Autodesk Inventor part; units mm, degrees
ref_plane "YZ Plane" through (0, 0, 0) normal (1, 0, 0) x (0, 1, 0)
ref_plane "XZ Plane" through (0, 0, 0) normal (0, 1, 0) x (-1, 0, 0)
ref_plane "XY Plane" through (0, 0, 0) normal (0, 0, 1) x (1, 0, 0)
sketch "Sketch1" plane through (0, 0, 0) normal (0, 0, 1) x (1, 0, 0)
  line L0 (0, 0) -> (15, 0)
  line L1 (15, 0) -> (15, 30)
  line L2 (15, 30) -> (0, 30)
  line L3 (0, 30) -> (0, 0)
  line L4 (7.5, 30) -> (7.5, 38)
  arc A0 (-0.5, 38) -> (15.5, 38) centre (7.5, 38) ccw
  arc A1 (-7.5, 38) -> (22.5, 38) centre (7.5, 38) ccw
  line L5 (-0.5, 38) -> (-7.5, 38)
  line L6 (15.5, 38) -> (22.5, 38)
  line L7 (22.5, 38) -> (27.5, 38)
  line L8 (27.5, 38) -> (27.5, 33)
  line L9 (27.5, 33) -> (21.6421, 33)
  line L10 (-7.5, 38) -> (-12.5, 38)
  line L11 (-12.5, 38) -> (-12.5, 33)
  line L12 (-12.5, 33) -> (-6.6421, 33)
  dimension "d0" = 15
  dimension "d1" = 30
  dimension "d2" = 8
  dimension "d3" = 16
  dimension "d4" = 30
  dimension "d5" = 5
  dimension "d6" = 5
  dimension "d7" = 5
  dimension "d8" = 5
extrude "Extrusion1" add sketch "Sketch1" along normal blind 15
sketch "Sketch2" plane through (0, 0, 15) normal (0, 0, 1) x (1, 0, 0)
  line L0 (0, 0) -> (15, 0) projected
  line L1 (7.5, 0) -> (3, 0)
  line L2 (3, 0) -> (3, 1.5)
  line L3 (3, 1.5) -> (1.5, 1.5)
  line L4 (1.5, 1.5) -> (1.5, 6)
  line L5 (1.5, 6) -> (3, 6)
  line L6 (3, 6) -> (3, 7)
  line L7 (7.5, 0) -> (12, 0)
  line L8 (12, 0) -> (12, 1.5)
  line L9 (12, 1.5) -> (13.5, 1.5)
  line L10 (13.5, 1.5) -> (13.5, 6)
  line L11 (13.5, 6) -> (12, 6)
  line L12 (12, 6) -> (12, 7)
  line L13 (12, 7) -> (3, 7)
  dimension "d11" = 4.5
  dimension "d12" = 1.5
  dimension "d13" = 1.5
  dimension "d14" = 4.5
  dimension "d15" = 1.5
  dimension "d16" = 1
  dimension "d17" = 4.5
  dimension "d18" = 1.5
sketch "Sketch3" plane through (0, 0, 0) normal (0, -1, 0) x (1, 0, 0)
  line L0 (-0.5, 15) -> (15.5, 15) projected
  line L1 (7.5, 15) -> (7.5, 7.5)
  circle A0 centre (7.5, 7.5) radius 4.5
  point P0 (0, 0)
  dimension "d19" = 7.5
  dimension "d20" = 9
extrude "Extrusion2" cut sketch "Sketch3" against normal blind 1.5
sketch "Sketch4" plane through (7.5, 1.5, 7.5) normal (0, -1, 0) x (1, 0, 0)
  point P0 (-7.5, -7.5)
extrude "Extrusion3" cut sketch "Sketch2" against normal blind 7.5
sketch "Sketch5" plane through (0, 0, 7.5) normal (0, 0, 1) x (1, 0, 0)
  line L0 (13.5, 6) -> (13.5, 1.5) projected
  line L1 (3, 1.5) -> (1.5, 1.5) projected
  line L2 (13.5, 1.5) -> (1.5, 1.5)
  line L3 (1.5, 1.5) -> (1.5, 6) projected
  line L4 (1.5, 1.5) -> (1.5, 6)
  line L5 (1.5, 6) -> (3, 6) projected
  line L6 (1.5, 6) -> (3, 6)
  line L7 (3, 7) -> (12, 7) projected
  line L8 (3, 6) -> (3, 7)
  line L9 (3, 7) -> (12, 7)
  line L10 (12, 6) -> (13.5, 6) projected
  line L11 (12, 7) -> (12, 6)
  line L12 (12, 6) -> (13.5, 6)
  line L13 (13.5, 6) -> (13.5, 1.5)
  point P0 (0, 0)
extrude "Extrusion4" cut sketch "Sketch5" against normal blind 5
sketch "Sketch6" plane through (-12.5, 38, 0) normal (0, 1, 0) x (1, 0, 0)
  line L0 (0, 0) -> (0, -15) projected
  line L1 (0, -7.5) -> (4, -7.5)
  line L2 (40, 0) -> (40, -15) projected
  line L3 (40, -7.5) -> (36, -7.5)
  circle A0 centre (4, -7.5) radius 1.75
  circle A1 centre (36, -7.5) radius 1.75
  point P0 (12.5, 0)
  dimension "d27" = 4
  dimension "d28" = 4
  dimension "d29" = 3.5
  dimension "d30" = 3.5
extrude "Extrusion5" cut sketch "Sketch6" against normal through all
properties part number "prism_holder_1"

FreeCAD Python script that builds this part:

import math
import FreeCAD as App
import Part
import Sketcher
from FreeCAD import Vector

doc = App.newDocument("Part")
body = doc.addObject("PartDesign::Body", "Body")

sketch1 = body.newObject("Sketcher::SketchObject", "Sketch")
sketch1.AttachmentSupport = (doc.getObject("XY_Plane"), [""])
sketch1.MapMode = "FlatFace"
sketch1.addGeometry([
    Part.LineSegment(Vector(0, 25.009619, 0), Vector(0, 0, 0)),
    Part.LineSegment(Vector(0, 0, 0), Vector(15, 0, 0)),
    Part.LineSegment(Vector(15, 0, 0), Vector(15, 25.009619, 0)),
    Part.ArcOfCircle(Part.Circle(Vector(7.5, 38, 0), Vector(0, 0, 1), 15), math.radians(-60), math.radians(-19.471266)),
    Part.LineSegment(Vector(21.6421, 33, 0), Vector(27.5, 33, 0)),
    Part.LineSegment(Vector(27.5, 33, 0), Vector(27.5, 38, 0)),
    Part.LineSegment(Vector(27.5, 38, 0), Vector(15.5, 38, 0)),
    Part.ArcOfCircle(Part.Circle(Vector(7.5, 38, 0), Vector(0, 0, 1), 8), math.radians(180), math.radians(360)),
    Part.LineSegment(Vector(-0.5, 38, 0), Vector(-12.5, 38, 0)),
    Part.LineSegment(Vector(-12.5, 38, 0), Vector(-12.5, 33, 0)),
    Part.LineSegment(Vector(-12.5, 33, 0), Vector(-6.6421, 33, 0)),
    Part.ArcOfCircle(Part.Circle(Vector(7.5, 38, 0), Vector(0, 0, 1), 15), math.radians(-160.528734), math.radians(-120)),
], False)
sketch1.addConstraint([
    Sketcher.Constraint("Coincident", 0, 2, 1, 1),
    Sketcher.Constraint("Coincident", 1, 2, 2, 1),
    Sketcher.Constraint("Coincident", 2, 2, 3, 1),
    Sketcher.Constraint("Coincident", 3, 2, 4, 1),
    Sketcher.Constraint("Coincident", 4, 2, 5, 1),
    Sketcher.Constraint("Coincident", 5, 2, 6, 1),
    Sketcher.Constraint("Coincident", 6, 2, 7, 2),
    Sketcher.Constraint("Coincident", 7, 1, 8, 1),
    Sketcher.Constraint("Coincident", 8, 2, 9, 1),
    Sketcher.Constraint("Coincident", 9, 2, 10, 1),
    Sketcher.Constraint("Coincident", 10, 2, 11, 1),
    Sketcher.Constraint("Coincident", 11, 2, 0, 1),
    Sketcher.Constraint("Vertical", 0),
    Sketcher.Constraint("Horizontal", 1),
    Sketcher.Constraint("Vertical", 2),
    Sketcher.Constraint("Horizontal", 4),
    Sketcher.Constraint("Vertical", 5),
    Sketcher.Constraint("Horizontal", 6),
    Sketcher.Constraint("Horizontal", 8),
    Sketcher.Constraint("Vertical", 9),
    Sketcher.Constraint("Horizontal", 10),
    Sketcher.Constraint("Coincident", 0, 2, -1, 1),
    Sketcher.Constraint("Coincident", 7, 3, 3, 3),
    Sketcher.Constraint("Coincident", 11, 3, 3, 3),
    Sketcher.Constraint("Equal", 3, 11),
    Sketcher.Constraint("Horizontal", 11, 3, 5, 2),
    Sketcher.Constraint("Horizontal", 6, 2, 7, 1),
    Sketcher.Constraint("Horizontal", 4, 2, 9, 2),
    Sketcher.Constraint("Horizontal", 2, 2, 11, 2),
    Sketcher.Constraint("Equal", 6, 8),
    Sketcher.Constraint("Radius", 3, 15.0),
    Sketcher.Constraint("Radius", 7, 8.0),
    Sketcher.Constraint("DistanceX", 1, 1, 1, 2, 15.0),
    Sketcher.Constraint("DistanceY", 5, 1, 5, 2, 5.0),
    Sketcher.Constraint("DistanceX", 6, 2, 6, 1, 12.0),
    Sketcher.Constraint("DistanceY", -1, 1, 3, 3, 38.0),
])
pad1 = body.newObject("PartDesign::Pad", "Pad")
pad1.Profile = sketch1
pad1.Length = 15

sketch2 = body.newObject("Sketcher::SketchObject", "Sketch001")
sketch2.AttachmentSupport = (doc.getObject("XZ_Plane"), [""])
sketch2.MapMode = "FlatFace"
sketch2.addGeometry(Part.Circle(Vector(7.5, 7.5, 0), Vector(0, 0, 1), 4.5), False)
sketch2.addConstraint([
    Sketcher.Constraint("Diameter", 0, 9.0),
    Sketcher.Constraint("DistanceX", -1, 1, 0, 3, 7.5),
    Sketcher.Constraint("DistanceY", -1, 1, 0, 3, 7.5),
])
pocket1 = body.newObject("PartDesign::Pocket", "Pocket")
pocket1.Profile = sketch2
pocket1.Length = 1.5

sketch3 = body.newObject("Sketcher::SketchObject", "Sketch002")
sketch3.AttachmentSupport = (doc.getObject("XY_Plane"), [""])
sketch3.MapMode = "FlatFace"
sketch3.AttachmentOffset = App.Placement(Vector(0, 0, 15), App.Rotation())
sketch3.addGeometry([
    Part.LineSegment(Vector(3, 1.5, 0), Vector(3, 0, 0)),
    Part.LineSegment(Vector(3, 0, 0), Vector(12, 0, 0)),
    Part.LineSegment(Vector(12, 0, 0), Vector(12, 1.5, 0)),
    Part.LineSegment(Vector(12, 1.5, 0), Vector(13.5, 1.5, 0)),
    Part.LineSegment(Vector(13.5, 1.5, 0), Vector(13.5, 6, 0)),
    Part.LineSegment(Vector(13.5, 6, 0), Vector(12, 6, 0)),
    Part.LineSegment(Vector(12, 6, 0), Vector(12, 7, 0)),
    Part.LineSegment(Vector(12, 7, 0), Vector(3, 7, 0)),
    Part.LineSegment(Vector(3, 7, 0), Vector(3, 6, 0)),
    Part.LineSegment(Vector(3, 6, 0), Vector(1.5, 6, 0)),
    Part.LineSegment(Vector(1.5, 6, 0), Vector(1.5, 1.5, 0)),
    Part.LineSegment(Vector(1.5, 1.5, 0), Vector(3, 1.5, 0)),
], False)
sketch3.addConstraint([
    Sketcher.Constraint("Coincident", 0, 2, 1, 1),
    Sketcher.Constraint("Coincident", 1, 2, 2, 1),
    Sketcher.Constraint("Coincident", 2, 2, 3, 1),
    Sketcher.Constraint("Coincident", 3, 2, 4, 1),
    Sketcher.Constraint("Coincident", 4, 2, 5, 1),
    Sketcher.Constraint("Coincident", 5, 2, 6, 1),
    Sketcher.Constraint("Coincident", 6, 2, 7, 1),
    Sketcher.Constraint("Coincident", 7, 2, 8, 1),
    Sketcher.Constraint("Coincident", 8, 2, 9, 1),
    Sketcher.Constraint("Coincident", 9, 2, 10, 1),
    Sketcher.Constraint("Coincident", 10, 2, 11, 1),
    Sketcher.Constraint("Coincident", 11, 2, 0, 1),
    Sketcher.Constraint("Vertical", 0),
    Sketcher.Constraint("Horizontal", 1),
    Sketcher.Constraint("Vertical", 2),
    Sketcher.Constraint("Horizontal", 3),
    Sketcher.Constraint("Vertical", 4),
    Sketcher.Constraint("Horizontal", 5),
    Sketcher.Constraint("Vertical", 6),
    Sketcher.Constraint("Horizontal", 7),
    Sketcher.Constraint("Vertical", 8),
    Sketcher.Constraint("Horizontal", 9),
    Sketcher.Constraint("Vertical", 10),
    Sketcher.Constraint("Horizontal", 11),
    Sketcher.Constraint("PointOnObject", 0, 2, -1),
    Sketcher.Constraint("Horizontal", 5, 2, 8, 2),
    Sketcher.Constraint("Horizontal", 3, 2, 10, 2),
    Sketcher.Constraint("Vertical", 2, 2, 5, 2),
    Sketcher.Constraint("Vertical", 0, 2, 7, 2),
    Sketcher.Constraint("Equal", 5, 9),
    Sketcher.Constraint("Equal", 11, 0),
    Sketcher.Constraint("DistanceY", 6, 1, 6, 2, 1.0),
    Sketcher.Constraint("DistanceX", 3, 1, 3, 2, 1.5),
    Sketcher.Constraint("DistanceY", 4, 1, 4, 2, 4.5),
    Sketcher.Constraint("DistanceX", -1, 1, 9, 2, 1.5),
    Sketcher.Constraint("DistanceX", 1, 1, 1, 2, 9.0),
])
pocket2 = body.newObject("PartDesign::Pocket", "Pocket001")
pocket2.Profile = sketch3
pocket2.Length = 7.5

sketch4 = body.newObject("Sketcher::SketchObject", "Sketch003")
sketch4.AttachmentSupport = (doc.getObject("XY_Plane"), [""])
sketch4.MapMode = "FlatFace"
sketch4.AttachmentOffset = App.Placement(Vector(0, 0, 7.5), App.Rotation())
sketch4.addGeometry([
    Part.LineSegment(Vector(13.5, 1.5, 0), Vector(13.5, 6, 0)),
    Part.LineSegment(Vector(13.5, 6, 0), Vector(12, 6, 0)),
    Part.LineSegment(Vector(12, 6, 0), Vector(12, 7, 0)),
    Part.LineSegment(Vector(12, 7, 0), Vector(3, 7, 0)),
    Part.LineSegment(Vector(3, 7, 0), Vector(3, 6, 0)),
    Part.LineSegment(Vector(3, 6, 0), Vector(1.5, 6, 0)),
    Part.LineSegment(Vector(1.5, 6, 0), Vector(1.5, 1.5, 0)),
    Part.LineSegment(Vector(1.5, 1.5, 0), Vector(13.5, 1.5, 0)),
], False)
sketch4.addConstraint([
    Sketcher.Constraint("Coincident", 0, 2, 1, 1),
    Sketcher.Constraint("Coincident", 1, 2, 2, 1),
    Sketcher.Constraint("Coincident", 2, 2, 3, 1),
    Sketcher.Constraint("Coincident", 3, 2, 4, 1),
    Sketcher.Constraint("Coincident", 4, 2, 5, 1),
    Sketcher.Constraint("Coincident", 5, 2, 6, 1),
    Sketcher.Constraint("Coincident", 6, 2, 7, 1),
    Sketcher.Constraint("Coincident", 7, 2, 0, 1),
    Sketcher.Constraint("Vertical", 0),
    Sketcher.Constraint("Horizontal", 1),
    Sketcher.Constraint("Vertical", 2),
    Sketcher.Constraint("Horizontal", 3),
    Sketcher.Constraint("Vertical", 4),
    Sketcher.Constraint("Horizontal", 5),
    Sketcher.Constraint("Vertical", 6),
    Sketcher.Constraint("Horizontal", 7),
    Sketcher.Constraint("Horizontal", 1, 2, 4, 2),
    Sketcher.Constraint("Equal", 1, 5),
    Sketcher.Constraint("DistanceX", 3, 2, 3, 1, 9.0),
    Sketcher.Constraint("DistanceX", 7, 1, 7, 2, 12.0),
    Sketcher.Constraint("DistanceY", 2, 1, 2, 2, 1.0),
    Sketcher.Constraint("DistanceY", 0, 1, 0, 2, 4.5),
    Sketcher.Constraint("DistanceY", -1, 1, 0, 2, 6.0),
    Sketcher.Constraint("DistanceX", -1, 1, 1, 2, 12.0),
])
pocket3 = body.newObject("PartDesign::Pocket", "Pocket002")
pocket3.Profile = sketch4
pocket3.Length = 5

sketch5 = body.newObject("Sketcher::SketchObject", "Sketch004")
sketch5.AttachmentSupport = (doc.getObject("XZ_Plane"), [""])
sketch5.MapMode = "FlatFace"
sketch5.AttachmentOffset = App.Placement(Vector(0, 0, -38), App.Rotation())
sketch5.addGeometry([
    Part.Circle(Vector(-8.5, 7.5, 0), Vector(0, 0, 1), 1.75),
    Part.Circle(Vector(23.5, 7.5, 0), Vector(0, 0, 1), 1.75),
], False)
sketch5.addConstraint([
    Sketcher.Constraint("Equal", 0, 1),
    Sketcher.Constraint("Horizontal", 0, 3, 1, 3),
    Sketcher.Constraint("Diameter", 0, 3.5),
    Sketcher.Constraint("DistanceX", 0, 3, 1, 3, 32.0),
    Sketcher.Constraint("DistanceX", 0, 3, -1, 1, 8.5),
    Sketcher.Constraint("DistanceY", -1, 1, 0, 3, 7.5),
])
pocket4 = body.newObject("PartDesign::Pocket", "Pocket003")
pocket4.Profile = sketch5
pocket4.Type = "ThroughAll"
pocket4.Reversed = True

doc.recompute()
